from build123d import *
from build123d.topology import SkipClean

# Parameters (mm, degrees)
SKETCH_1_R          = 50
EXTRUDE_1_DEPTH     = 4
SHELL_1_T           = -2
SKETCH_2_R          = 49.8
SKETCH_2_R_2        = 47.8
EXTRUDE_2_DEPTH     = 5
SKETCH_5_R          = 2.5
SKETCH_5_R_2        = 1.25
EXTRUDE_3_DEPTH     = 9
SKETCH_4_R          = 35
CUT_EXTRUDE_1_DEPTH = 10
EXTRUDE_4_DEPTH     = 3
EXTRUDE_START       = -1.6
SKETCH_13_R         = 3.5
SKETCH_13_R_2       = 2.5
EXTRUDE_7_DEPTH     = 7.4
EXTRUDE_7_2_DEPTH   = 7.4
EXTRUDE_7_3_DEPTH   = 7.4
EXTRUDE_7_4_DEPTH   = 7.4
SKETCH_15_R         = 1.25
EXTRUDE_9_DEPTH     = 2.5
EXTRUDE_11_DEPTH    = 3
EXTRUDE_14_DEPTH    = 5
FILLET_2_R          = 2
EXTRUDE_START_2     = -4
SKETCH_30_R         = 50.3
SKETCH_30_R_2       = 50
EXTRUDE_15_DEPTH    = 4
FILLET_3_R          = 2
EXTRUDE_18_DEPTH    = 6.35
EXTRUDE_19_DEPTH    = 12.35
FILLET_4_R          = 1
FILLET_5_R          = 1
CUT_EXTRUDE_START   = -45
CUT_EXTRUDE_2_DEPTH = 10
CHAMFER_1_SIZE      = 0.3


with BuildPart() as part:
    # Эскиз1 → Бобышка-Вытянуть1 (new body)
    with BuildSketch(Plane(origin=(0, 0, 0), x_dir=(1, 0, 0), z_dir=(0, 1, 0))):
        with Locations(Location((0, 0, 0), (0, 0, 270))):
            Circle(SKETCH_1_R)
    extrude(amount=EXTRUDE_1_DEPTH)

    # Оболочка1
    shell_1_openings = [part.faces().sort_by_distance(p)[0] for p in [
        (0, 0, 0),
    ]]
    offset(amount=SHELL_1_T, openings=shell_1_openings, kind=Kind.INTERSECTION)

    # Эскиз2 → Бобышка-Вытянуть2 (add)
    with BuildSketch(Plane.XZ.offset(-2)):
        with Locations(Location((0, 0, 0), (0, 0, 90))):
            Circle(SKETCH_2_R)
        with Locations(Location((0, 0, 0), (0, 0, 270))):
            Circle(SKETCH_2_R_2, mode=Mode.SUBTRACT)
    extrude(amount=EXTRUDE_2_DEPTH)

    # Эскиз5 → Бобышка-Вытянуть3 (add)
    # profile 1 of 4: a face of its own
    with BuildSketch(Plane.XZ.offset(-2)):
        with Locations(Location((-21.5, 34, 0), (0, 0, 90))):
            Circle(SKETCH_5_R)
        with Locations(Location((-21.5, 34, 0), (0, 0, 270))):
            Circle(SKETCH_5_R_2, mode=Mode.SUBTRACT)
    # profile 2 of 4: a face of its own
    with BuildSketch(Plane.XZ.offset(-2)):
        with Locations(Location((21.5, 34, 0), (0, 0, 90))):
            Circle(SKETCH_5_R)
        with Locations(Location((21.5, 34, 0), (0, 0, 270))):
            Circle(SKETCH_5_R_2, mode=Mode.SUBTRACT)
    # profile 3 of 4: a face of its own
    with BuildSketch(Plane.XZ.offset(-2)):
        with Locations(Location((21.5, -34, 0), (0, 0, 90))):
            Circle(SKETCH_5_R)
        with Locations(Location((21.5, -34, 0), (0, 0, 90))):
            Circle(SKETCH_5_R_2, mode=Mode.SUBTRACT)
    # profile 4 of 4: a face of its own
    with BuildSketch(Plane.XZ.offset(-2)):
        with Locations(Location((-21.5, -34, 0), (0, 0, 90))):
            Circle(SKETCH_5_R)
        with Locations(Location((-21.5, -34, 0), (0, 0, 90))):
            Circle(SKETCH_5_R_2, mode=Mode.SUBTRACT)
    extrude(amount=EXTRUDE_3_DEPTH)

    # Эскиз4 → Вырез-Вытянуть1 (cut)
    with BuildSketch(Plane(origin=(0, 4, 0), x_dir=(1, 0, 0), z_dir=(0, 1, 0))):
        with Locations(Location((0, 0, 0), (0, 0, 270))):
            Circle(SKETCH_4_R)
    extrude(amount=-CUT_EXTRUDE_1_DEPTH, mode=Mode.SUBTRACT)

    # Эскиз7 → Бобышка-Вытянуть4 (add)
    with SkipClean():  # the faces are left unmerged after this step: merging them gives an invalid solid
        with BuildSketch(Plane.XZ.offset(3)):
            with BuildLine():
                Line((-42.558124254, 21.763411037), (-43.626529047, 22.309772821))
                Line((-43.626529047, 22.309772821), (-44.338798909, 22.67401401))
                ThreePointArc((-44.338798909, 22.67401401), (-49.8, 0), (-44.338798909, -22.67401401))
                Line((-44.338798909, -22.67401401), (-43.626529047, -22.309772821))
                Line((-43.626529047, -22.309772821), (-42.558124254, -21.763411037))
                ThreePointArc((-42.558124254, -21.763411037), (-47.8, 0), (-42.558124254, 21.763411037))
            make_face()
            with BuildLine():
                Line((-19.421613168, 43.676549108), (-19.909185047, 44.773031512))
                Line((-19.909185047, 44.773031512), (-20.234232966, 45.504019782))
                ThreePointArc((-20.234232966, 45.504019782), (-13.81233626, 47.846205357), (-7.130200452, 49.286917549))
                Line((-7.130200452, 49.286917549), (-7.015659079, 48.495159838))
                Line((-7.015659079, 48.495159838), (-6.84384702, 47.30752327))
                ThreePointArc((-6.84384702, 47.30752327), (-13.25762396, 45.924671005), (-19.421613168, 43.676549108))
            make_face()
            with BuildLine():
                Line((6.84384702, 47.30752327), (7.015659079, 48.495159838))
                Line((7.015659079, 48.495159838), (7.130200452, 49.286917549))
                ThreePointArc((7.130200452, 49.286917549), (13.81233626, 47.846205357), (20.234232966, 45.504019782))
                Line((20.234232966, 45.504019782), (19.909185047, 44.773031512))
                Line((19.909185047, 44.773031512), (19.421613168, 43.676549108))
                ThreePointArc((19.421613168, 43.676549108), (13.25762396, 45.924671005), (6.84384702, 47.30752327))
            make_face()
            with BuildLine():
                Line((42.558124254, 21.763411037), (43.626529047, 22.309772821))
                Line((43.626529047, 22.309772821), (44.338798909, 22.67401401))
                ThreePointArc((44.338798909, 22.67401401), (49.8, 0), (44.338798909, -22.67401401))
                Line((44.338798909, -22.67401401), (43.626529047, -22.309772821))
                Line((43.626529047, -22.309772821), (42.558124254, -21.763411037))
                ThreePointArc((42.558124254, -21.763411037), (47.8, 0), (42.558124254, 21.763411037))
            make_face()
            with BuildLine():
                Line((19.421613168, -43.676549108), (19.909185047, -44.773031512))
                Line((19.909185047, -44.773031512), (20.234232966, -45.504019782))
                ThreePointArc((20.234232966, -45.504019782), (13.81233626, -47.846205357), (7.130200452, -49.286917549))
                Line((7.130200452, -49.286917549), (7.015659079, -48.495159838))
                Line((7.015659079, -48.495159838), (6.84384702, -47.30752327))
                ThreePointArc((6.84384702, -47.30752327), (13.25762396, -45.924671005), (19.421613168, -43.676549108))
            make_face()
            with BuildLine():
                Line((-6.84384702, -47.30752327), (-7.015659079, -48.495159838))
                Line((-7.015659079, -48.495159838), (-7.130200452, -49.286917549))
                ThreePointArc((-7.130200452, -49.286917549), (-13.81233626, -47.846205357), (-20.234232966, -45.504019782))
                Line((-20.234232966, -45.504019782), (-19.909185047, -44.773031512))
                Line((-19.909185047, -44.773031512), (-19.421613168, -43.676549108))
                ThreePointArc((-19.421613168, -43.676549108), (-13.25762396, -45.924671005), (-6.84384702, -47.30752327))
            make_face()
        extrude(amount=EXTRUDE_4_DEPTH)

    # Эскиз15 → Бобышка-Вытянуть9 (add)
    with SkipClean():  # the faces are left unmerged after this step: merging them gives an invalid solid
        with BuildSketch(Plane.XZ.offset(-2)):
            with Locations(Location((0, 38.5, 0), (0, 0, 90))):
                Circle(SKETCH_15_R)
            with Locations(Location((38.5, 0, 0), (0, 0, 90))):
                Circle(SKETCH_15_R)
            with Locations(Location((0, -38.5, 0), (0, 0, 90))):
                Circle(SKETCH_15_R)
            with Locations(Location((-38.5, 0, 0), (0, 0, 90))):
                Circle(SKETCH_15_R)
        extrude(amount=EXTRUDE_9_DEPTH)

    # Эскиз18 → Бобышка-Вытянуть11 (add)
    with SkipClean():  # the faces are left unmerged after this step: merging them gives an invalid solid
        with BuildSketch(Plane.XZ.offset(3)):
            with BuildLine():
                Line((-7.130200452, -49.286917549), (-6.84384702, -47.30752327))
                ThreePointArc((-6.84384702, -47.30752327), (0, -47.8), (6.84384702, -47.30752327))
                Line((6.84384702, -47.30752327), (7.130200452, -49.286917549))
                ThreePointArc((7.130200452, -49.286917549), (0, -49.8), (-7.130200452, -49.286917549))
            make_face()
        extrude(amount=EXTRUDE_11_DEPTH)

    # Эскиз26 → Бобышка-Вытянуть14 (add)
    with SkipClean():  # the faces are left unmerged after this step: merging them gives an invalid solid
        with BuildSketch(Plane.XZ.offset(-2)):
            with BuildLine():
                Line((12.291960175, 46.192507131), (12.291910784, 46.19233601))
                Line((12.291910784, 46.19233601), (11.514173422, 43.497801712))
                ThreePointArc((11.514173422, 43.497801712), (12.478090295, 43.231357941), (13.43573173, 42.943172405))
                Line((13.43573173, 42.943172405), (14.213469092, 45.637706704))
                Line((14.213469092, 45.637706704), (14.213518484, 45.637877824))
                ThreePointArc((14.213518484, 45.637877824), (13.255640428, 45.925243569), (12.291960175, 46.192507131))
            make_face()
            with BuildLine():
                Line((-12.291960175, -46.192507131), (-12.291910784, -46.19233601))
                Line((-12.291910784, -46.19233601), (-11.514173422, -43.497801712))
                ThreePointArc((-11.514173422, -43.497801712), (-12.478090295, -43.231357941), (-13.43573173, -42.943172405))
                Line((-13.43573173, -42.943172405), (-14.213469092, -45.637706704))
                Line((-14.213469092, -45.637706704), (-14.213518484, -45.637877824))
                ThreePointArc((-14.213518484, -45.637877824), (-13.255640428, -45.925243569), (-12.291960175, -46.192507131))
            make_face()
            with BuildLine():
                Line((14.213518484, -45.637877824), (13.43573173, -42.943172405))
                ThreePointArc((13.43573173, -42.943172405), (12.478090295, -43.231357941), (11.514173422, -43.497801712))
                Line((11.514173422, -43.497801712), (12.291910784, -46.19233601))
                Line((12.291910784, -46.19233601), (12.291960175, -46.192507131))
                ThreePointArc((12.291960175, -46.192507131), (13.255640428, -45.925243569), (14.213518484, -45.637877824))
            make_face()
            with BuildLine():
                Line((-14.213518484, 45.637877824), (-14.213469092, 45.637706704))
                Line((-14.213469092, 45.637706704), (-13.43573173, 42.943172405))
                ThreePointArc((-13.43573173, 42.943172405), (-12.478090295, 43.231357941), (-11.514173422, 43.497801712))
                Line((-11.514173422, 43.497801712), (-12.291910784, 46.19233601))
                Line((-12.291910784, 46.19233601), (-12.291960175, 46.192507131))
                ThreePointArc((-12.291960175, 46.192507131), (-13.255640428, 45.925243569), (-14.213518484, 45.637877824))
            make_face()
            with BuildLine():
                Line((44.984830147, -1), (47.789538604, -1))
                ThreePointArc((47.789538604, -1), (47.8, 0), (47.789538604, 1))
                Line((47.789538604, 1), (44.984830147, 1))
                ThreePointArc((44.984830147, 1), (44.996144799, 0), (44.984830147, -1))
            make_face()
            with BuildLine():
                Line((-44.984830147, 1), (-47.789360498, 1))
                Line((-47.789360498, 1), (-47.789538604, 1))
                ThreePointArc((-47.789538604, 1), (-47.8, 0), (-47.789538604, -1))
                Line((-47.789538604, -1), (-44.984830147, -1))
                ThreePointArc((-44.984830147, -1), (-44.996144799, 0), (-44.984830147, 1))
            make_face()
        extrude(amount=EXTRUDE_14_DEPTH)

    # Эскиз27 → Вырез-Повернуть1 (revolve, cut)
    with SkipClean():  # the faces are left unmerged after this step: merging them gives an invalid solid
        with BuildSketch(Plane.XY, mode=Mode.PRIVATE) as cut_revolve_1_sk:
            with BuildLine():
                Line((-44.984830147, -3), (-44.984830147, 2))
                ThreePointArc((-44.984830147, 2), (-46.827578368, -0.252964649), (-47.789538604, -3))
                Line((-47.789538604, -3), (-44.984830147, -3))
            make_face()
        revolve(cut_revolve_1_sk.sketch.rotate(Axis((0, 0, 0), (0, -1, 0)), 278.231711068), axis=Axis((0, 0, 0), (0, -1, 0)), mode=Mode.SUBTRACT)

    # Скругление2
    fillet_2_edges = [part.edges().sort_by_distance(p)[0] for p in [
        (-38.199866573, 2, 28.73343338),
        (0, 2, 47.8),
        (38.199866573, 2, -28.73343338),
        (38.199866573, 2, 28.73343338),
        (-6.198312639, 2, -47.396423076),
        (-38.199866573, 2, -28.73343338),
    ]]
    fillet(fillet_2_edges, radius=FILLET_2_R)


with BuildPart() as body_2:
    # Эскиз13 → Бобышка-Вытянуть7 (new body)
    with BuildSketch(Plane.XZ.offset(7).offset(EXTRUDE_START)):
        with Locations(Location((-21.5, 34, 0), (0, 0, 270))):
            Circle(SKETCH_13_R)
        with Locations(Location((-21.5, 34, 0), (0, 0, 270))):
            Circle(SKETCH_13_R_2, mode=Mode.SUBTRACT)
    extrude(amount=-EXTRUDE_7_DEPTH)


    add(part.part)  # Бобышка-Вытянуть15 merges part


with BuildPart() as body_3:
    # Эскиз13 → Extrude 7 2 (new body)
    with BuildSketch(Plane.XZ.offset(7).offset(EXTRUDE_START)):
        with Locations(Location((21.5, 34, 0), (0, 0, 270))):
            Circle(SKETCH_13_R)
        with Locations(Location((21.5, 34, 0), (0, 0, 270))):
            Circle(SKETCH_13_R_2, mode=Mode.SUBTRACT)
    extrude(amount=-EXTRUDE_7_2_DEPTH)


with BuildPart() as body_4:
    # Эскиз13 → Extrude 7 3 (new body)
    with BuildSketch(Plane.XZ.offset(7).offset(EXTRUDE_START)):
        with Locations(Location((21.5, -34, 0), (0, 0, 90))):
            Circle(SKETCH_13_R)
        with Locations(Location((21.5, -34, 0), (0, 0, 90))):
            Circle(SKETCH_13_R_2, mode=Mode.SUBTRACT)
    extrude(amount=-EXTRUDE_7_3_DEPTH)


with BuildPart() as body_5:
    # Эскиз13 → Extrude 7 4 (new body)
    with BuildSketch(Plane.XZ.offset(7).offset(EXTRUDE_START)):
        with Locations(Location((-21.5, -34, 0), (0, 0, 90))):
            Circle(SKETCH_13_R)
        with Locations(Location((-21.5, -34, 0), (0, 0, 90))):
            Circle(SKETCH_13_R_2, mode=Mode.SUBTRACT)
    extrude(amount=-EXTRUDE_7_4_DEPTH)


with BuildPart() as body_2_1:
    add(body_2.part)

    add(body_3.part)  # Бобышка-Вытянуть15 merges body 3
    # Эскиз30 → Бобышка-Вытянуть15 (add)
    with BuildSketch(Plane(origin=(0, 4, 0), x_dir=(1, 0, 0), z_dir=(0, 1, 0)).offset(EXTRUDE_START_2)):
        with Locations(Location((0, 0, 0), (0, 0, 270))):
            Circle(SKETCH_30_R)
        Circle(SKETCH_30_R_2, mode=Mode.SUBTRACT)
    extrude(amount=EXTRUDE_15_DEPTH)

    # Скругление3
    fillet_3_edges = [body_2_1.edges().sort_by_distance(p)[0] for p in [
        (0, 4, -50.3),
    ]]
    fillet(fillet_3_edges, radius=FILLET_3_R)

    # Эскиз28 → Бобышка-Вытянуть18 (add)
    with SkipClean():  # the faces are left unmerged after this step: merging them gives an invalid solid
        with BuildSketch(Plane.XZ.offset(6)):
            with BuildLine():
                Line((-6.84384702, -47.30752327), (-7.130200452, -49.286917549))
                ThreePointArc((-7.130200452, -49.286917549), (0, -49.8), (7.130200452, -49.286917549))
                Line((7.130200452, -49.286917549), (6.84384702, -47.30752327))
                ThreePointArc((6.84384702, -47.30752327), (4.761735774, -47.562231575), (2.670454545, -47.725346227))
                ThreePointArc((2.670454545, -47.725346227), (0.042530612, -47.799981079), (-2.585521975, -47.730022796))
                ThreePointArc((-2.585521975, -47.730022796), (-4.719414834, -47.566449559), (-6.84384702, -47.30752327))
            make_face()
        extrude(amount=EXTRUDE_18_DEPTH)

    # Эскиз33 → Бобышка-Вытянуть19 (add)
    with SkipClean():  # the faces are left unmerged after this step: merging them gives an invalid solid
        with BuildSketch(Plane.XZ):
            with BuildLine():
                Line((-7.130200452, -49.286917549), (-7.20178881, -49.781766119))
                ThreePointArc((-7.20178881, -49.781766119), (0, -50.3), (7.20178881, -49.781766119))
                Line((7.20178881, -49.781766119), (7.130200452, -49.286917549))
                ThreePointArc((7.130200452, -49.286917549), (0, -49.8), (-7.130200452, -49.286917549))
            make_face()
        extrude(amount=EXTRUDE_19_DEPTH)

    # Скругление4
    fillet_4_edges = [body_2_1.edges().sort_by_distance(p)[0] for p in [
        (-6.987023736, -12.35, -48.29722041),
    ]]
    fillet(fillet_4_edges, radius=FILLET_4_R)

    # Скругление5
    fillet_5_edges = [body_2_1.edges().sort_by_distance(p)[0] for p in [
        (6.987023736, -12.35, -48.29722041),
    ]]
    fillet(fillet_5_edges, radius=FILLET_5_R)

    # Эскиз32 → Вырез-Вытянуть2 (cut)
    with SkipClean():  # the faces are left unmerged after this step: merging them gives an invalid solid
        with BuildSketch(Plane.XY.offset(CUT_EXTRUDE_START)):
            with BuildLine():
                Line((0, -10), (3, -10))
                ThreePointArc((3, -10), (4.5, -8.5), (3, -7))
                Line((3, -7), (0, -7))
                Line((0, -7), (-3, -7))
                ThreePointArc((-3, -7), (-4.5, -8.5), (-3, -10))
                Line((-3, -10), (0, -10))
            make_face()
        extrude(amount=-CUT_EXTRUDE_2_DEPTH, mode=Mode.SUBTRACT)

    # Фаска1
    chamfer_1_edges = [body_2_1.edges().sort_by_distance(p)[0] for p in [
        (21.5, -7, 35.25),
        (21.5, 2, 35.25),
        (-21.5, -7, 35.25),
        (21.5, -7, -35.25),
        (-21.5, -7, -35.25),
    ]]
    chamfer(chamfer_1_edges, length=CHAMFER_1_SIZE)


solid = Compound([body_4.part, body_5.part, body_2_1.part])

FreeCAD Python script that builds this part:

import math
import FreeCAD as App
import Part
import Sketcher

V = App.Vector
Q = App.Units.Quantity


def edges_at(feature, points):
    """Names of the edges that pass closest to the given points."""
    edges = feature.Shape.Edges
    near = lambda p: min(range(len(edges)), key=lambda i: edges[i].distToShape(Part.Vertex(*p))[0])
    return sorted({f"Edge{near(p) + 1}" for p in points})


def faces_at(feature, points):
    """Names of the faces that lie closest to the given points."""
    faces = feature.Shape.Faces
    near = lambda p: min(range(len(faces)), key=lambda i: faces[i].distToShape(Part.Vertex(*p))[0])
    return sorted({f"Face{near(p) + 1}" for p in points})

doc = App.newDocument("Part")
body = doc.addObject("PartDesign::Body", "Body")

# Sketch on XZ plane
sketch1 = body.newObject("Sketcher::SketchObject", "Sketch")
sketch1.AttachmentSupport = (doc.getObject("XZ_Plane"), [""])
sketch1.MapMode = "FlatFace"
sketch1.addGeometry(Part.Circle(V(0, 0, 0), V(0, 0, 1), 50), False)
sketch1.addConstraint([
    Sketcher.Constraint("Coincident", 0, 3, -1, 1),
    Sketcher.Constraint("Diameter", 0, Q("100 mm")),
])
pad1 = body.newObject("PartDesign::Pad", "Pad")
pad1.Profile = sketch1
pad1.Length = 4
pad1.Reversed = True
doc.recompute()

thickness = body.newObject("PartDesign::Thickness", "Thickness")
thickness.Base = (pad1, faces_at(pad1, [(0, 0, 0)]))
thickness.Value = 2
thickness.Reversed = True
thickness.Join = "Intersection"

# Sketch on XZ plane
sketch2 = body.newObject("Sketcher::SketchObject", "Sketch001")
sketch2.AttachmentSupport = (doc.getObject("XZ_Plane"), [""])
sketch2.MapMode = "FlatFace"
sketch2.AttachmentOffset = App.Placement(V(0, 0, -2), App.Rotation())
sketch2.addGeometry([
    Part.Circle(V(0, 0, 0), V(0, 0, 1), 50),
    Part.Circle(V(0, 0, 0), V(0, 0, 1), 48),
], False)
sketch2.addConstraint([
    Sketcher.Constraint("Coincident", 0, 3, -1, 1),
    Sketcher.Constraint("Coincident", 1, 3, -1, 1),
    Sketcher.Constraint("Diameter", 0, Q("99.6 mm")),
    Sketcher.Constraint("Diameter", 1, Q("95.6 mm")),
])
pad2 = body.newObject("PartDesign::Pad", "Pad001")
pad2.Profile = sketch2
pad2.Length = 5

# Sketch on XZ plane
sketch3 = body.newObject("Sketcher::SketchObject", "Sketch002")
sketch3.AttachmentSupport = (doc.getObject("XZ_Plane"), [""])
sketch3.MapMode = "FlatFace"
sketch3.AttachmentOffset = App.Placement(V(0, 0, -2), App.Rotation())
sketch3.addGeometry([
    Part.Circle(V(-21.5, 34, 0), V(0, 0, 1), 2.5),  # 0
    Part.Circle(V(-21.5, 34, 0), V(0, 0, 1), 1.2),  # 1
    Part.Circle(V(21.5, 34, 0), V(0, 0, 1), 2.5),  # 2
    Part.Circle(V(21.5, 34, 0), V(0, 0, 1), 1.2),  # 3
    Part.Circle(V(21.5, -34, 0), V(0, 0, 1), 2.5),  # 4
    Part.Circle(V(21.5, -34, 0), V(0, 0, 1), 1.2),  # 5
    Part.Circle(V(-21.5, -34, 0), V(0, 0, 1), 2.5),  # 6
    Part.Circle(V(-21.5, -34, 0), V(0, 0, 1), 1.2),  # 7
], False)
sketch3.addConstraint([
    Sketcher.Constraint("Coincident", 1, 3, 0, 3),
    Sketcher.Constraint("Coincident", 3, 3, 2, 3),
    Sketcher.Constraint("Coincident", 5, 3, 4, 3),
    Sketcher.Constraint("Coincident", 7, 3, 6, 3),
    Sketcher.Constraint("Equal", 0, 2),
    Sketcher.Constraint("Equal", 1, 3),
    Sketcher.Constraint("Equal", 2, 4),
    Sketcher.Constraint("Equal", 3, 5),
    Sketcher.Constraint("Equal", 4, 6),
    Sketcher.Constraint("Equal", 5, 7),
    Sketcher.Constraint("Symmetric", 0, 3, 4, 3, -1, 1),
    Sketcher.Constraint("Symmetric", 2, 3, 6, 3, -1, 1),
    Sketcher.Constraint("Symmetric", 0, 3, 2, 3, -2),
    Sketcher.Constraint("Diameter", 0, Q("5 mm")),
    Sketcher.Constraint("Diameter", 1, Q("2.5 mm")),
    Sketcher.Constraint("DistanceY", -1, 1, 0, 3, Q("34 mm")),
    Sketcher.Constraint("DistanceX", 0, 3, 2, 3, Q("43 mm")),
])
pad3 = body.newObject("PartDesign::Pad", "Pad002")
pad3.Profile = sketch3
pad3.Length = 9

# Sketch on XZ plane
sketch4 = body.newObject("Sketcher::SketchObject", "Sketch003")
sketch4.AttachmentSupport = (doc.getObject("XZ_Plane"), [""])
sketch4.MapMode = "FlatFace"
sketch4.AttachmentOffset = App.Placement(V(0, 0, -4), App.Rotation())
sketch4.addGeometry(Part.Circle(V(0, 0, 0), V(0, 0, 1), 35), False)
sketch4.addConstraint([
    Sketcher.Constraint("Coincident", 0, 3, -1, 1),
    Sketcher.Constraint("Diameter", 0, Q("70 mm")),
])
pocket1 = body.newObject("PartDesign::Pocket", "Pocket")
pocket1.Profile = sketch4
pocket1.Length = 10
pocket1.Reversed = True

# Sketch on XZ plane
sketch5 = body.newObject("Sketcher::SketchObject", "Sketch004")
sketch5.AttachmentSupport = (doc.getObject("XZ_Plane"), [""])
sketch5.MapMode = "FlatFace"
sketch5.AttachmentOffset = App.Placement(V(0, 0, 3), App.Rotation())
sketch5.addGeometry([
    Part.LineSegment(V(-42.6, 21.8, 0), V(-43.6, 22.3, 0)),  # 0
    Part.LineSegment(V(-43.6, 22.3, 0), V(-44.3, 22.7, 0)),  # 1
    Part.ArcOfCircle(Part.Circle(V(0, 0, 0), V(0, 0, 1), 49.8), math.radians(153), math.radians(207)),  # 2
    Part.LineSegment(V(-44.3, -22.7, 0), V(-43.6, -22.3, 0)),  # 3
    Part.LineSegment(V(-43.6, -22.3, 0), V(-42.6, -21.8, 0)),  # 4
    Part.ArcOfCircle(Part.Circle(V(0, 0, 0), V(0, 0, 1), 47.8), math.radians(153), math.radians(207)),  # 5
    Part.LineSegment(V(-19.9, 44.8, 0), V(-19.4, 43.7, 0)),  # 6
    Part.ArcOfCircle(Part.Circle(V(0, 0, 0), V(0, 0, 1), 47.8), math.radians(98.23), math.radians(113.97)),  # 7
    Part.LineSegment(V(-6.8, 47.3, 0), V(-7, 48.5, 0)),  # 8
    Part.LineSegment(V(-7, 48.5, 0), V(-7.1, 49.3, 0)),  # 9
    Part.ArcOfCircle(Part.Circle(V(0, 0, 0), V(0, 0, 1), 49.8), math.radians(98.23), math.radians(113.97)),  # 10
    Part.LineSegment(V(-20.2, 45.5, 0), V(-19.9, 44.8, 0)),  # 11
    Part.LineSegment(V(7, 48.5, 0), V(6.8, 47.3, 0)),  # 12
    Part.ArcOfCircle(Part.Circle(V(0, 0, 0), V(0, 0, 1), 47.8), math.radians(66.03), math.radians(81.77)),  # 13
    Part.LineSegment(V(19.4, 43.7, 0), V(19.9, 44.8, 0)),  # 14
    Part.LineSegment(V(19.9, 44.8, 0), V(20.2, 45.5, 0)),  # 15
    Part.ArcOfCircle(Part.Circle(V(0, 0, 0), V(0, 0, 1), 49.8), math.radians(66.03), math.radians(81.77)),  # 16
    Part.LineSegment(V(7.1, 49.3, 0), V(7, 48.5, 0)),  # 17
    Part.LineSegment(V(43.6, 22.3, 0), V(42.6, 21.8, 0)),  # 18
    Part.ArcOfCircle(Part.Circle(V(0, 0, 0), V(0, 0, 1), 47.8), math.radians(-27), math.radians(27)),  # 19
    Part.LineSegment(V(42.6, -21.8, 0), V(43.6, -22.3, 0)),  # 20
    Part.LineSegment(V(43.6, -22.3, 0), V(44.3, -22.7, 0)),  # 21
    Part.ArcOfCircle(Part.Circle(V(0, 0, 0), V(0, 0, 1), 49.8), math.radians(-27), math.radians(27)),  # 22
    Part.LineSegment(V(44.3, 22.7, 0), V(43.6, 22.3, 0)),  # 23
    Part.LineSegment(V(19.9, -44.8, 0), V(19.4, -43.7, 0)),  # 24
    Part.ArcOfCircle(Part.Circle(V(0, 0, 0), V(0, 0, 1), 47.8), math.radians(-81.77), math.radians(-66.03)),  # 25
    Part.LineSegment(V(6.8, -47.3, 0), V(7, -48.5, 0)),  # 26
    Part.LineSegment(V(7, -48.5, 0), V(7.1, -49.3, 0)),  # 27
    Part.ArcOfCircle(Part.Circle(V(0, 0, 0), V(0, 0, 1), 49.8), math.radians(-81.77), math.radians(-66.03)),  # 28
    Part.LineSegment(V(20.2, -45.5, 0), V(19.9, -44.8, 0)),  # 29
    Part.LineSegment(V(-7, -48.5, 0), V(-6.8, -47.3, 0)),  # 30
    Part.ArcOfCircle(Part.Circle(V(0, 0, 0), V(0, 0, 1), 47.8), math.radians(-113.97), math.radians(-98.23)),  # 31
    Part.LineSegment(V(-19.4, -43.7, 0), V(-19.9, -44.8, 0)),  # 32
    Part.LineSegment(V(-19.9, -44.8, 0), V(-20.2, -45.5, 0)),  # 33
    Part.ArcOfCircle(Part.Circle(V(0, 0, 0), V(0, 0, 1), 49.8), math.radians(-113.97), math.radians(-98.23)),  # 34
    Part.LineSegment(V(-7.1, -49.3, 0), V(-7, -48.5, 0)),  # 35
], False)
sketch5.addConstraint([
    Sketcher.Constraint("Coincident", 0, 2, 1, 1),
    Sketcher.Constraint("Coincident", 1, 2, 2, 1),
    Sketcher.Constraint("Coincident", 2, 2, 3, 1),
    Sketcher.Constraint("Coincident", 3, 2, 4, 1),
    Sketcher.Constraint("Coincident", 4, 2, 5, 2),
    Sketcher.Constraint("Coincident", 5, 1, 0, 1),
    Sketcher.Constraint("Coincident", 6, 2, 7, 2),
    Sketcher.Constraint("Coincident", 7, 1, 8, 1),
    Sketcher.Constraint("Coincident", 8, 2, 9, 1),
    Sketcher.Constraint("Coincident", 9, 2, 10, 1),
    Sketcher.Constraint("Coincident", 10, 2, 11, 1),
    Sketcher.Constraint("Coincident", 11, 2, 6, 1),
    Sketcher.Constraint("Coincident", 12, 2, 13, 2),
    Sketcher.Constraint("Coincident", 13, 1, 14, 1),
    Sketcher.Constraint("Coincident", 14, 2, 15, 1),
    Sketcher.Constraint("Coincident", 15, 2, 16, 1),
    Sketcher.Constraint("Coincident", 16, 2, 17, 1),
    Sketcher.Constraint("Coincident", 17, 2, 12, 1),
    Sketcher.Constraint("Coincident", 18, 2, 19, 2),
    Sketcher.Constraint("Coincident", 19, 1, 20, 1),
    Sketcher.Constraint("Coincident", 20, 2, 21, 1),
    Sketcher.Constraint("Coincident", 21, 2, 22, 1),
    Sketcher.Constraint("Coincident", 22, 2, 23, 1),
    Sketcher.Constraint("Coincident", 23, 2, 18, 1),
    Sketcher.Constraint("Coincident", 24, 2, 25, 2),
    Sketcher.Constraint("Coincident", 25, 1, 26, 1),
    Sketcher.Constraint("Coincident", 26, 2, 27, 1),
    Sketcher.Constraint("Coincident", 27, 2, 28, 1),
    Sketcher.Constraint("Coincident", 28, 2, 29, 1),
    Sketcher.Constraint("Coincident", 29, 2, 24, 1),
    Sketcher.Constraint("Coincident", 30, 2, 31, 2),
    Sketcher.Constraint("Coincident", 31, 1, 32, 1),
    Sketcher.Constraint("Coincident", 32, 2, 33, 1),
    Sketcher.Constraint("Coincident", 33, 2, 34, 1),
    Sketcher.Constraint("Coincident", 34, 2, 35, 1),
    Sketcher.Constraint("Coincident", 35, 2, 30, 1),
    Sketcher.Constraint("Coincident", 2, 3, -1, 1),
    Sketcher.Constraint("Coincident", 5, 3, -1, 1),
    Sketcher.Constraint("Coincident", 7, 3, -1, 1),
    Sketcher.Constraint("Coincident", 10, 3, -1, 1),
    Sketcher.Constraint("Coincident", 13, 3, -1, 1),
    Sketcher.Constraint("Coincident", 16, 3, -1, 1),
    Sketcher.Constraint("Coincident", 19, 3, -1, 1),
    Sketcher.Constraint("Coincident", 22, 3, -1, 1),
    Sketcher.Constraint("Coincident", 25, 3, -1, 1),
    Sketcher.Constraint("Coincident", 28, 3, -1, 1),
    Sketcher.Constraint("Coincident", 31, 3, -1, 1),
    Sketcher.Constraint("Coincident", 34, 3, -1, 1),
    Sketcher.Constraint("Equal", 5, 7),
    Sketcher.Constraint("Equal", 2, 10),
    Sketcher.Constraint("Equal", 7, 13),
    Sketcher.Constraint("Equal", 10, 16),
    Sketcher.Constraint("Equal", 13, 19),
    Sketcher.Constraint("Equal", 16, 22),
    Sketcher.Constraint("Equal", 19, 25),
    Sketcher.Constraint("Equal", 22, 28),
    Sketcher.Constraint("Equal", 25, 31),
    Sketcher.Constraint("Equal", 28, 34),
    Sketcher.Constraint("Symmetric", 0, 2, 20, 2, -1, 1),
    Sketcher.Constraint("Symmetric", 3, 2, 23, 2, -1, 1),
    Sketcher.Constraint("Symmetric", 8, 2, 26, 2, -1, 1),
    Sketcher.Constraint("Symmetric", 11, 2, 29, 2, -1, 1),
    Sketcher.Constraint("Symmetric", 14, 2, 32, 2, -1, 1),
    Sketcher.Constraint("Symmetric", 17, 2, 35, 2, -1, 1),
    Sketcher.Constraint("Symmetric", 11, 2, 14, 2, -2),
    Sketcher.Constraint("Symmetric", 8, 2, 17, 2, -2),
    Sketcher.Constraint("Symmetric", 3, 2, 20, 2, -2),
    Sketcher.Constraint("Parallel", 0, 1),
    Sketcher.Constraint("Parallel", 3, 4),
    Sketcher.Constraint("Parallel", 8, 9),
    Sketcher.Constraint("Parallel", 6, 11),
    Sketcher.Constraint("Parallel", 14, 15),
    Sketcher.Constraint("Parallel", 12, 17),
    Sketcher.Constraint("Parallel", 4, 18),
    Sketcher.Constraint("Parallel", 1, 20),
    Sketcher.Constraint("Parallel", 20, 21),
    Sketcher.Constraint("Parallel", 18, 23),
    Sketcher.Constraint("Parallel", 11, 24),
    Sketcher.Constraint("Parallel", 9, 26),
    Sketcher.Constraint("Parallel", 26, 27),
    Sketcher.Constraint("Parallel", 24, 29),
    Sketcher.Constraint("Parallel", 17, 30),
    Sketcher.Constraint("Parallel", 15, 32),
    Sketcher.Constraint("Parallel", 32, 33),
    Sketcher.Constraint("Parallel", 30, 35),
    Sketcher.Constraint("Horizontal", 7, 1, 12, 2),
    Sketcher.Constraint("Horizontal", 6, 2, 13, 1),
    Sketcher.Constraint("Horizontal", 5, 1, 18, 2),
    Sketcher.Constraint("Equal", 4, 6),
    Sketcher.Constraint("Equal", 6, 8),
    Sketcher.Constraint("Radius", 2, Q("49.8 mm")),
    Sketcher.Constraint("Radius", 5, Q("47.8 mm")),
    Sketcher.Constraint("Distance", 0, Q("1.2 mm")),
    Sketcher.Constraint("DistanceX", 1, 2, -1, 1, Q("44.338799 mm")),
    Sketcher.Constraint("DistanceX", 9, 2, -1, 1, Q("7.1302 mm")),
    Sketcher.Constraint("DistanceX", 0, 2, -1, 1, Q("43.626529 mm")),
    Sketcher.Constraint("DistanceY", -1, 1, 6, 2, Q("43.676549 mm")),
    Sketcher.Constraint("DistanceX", 8, 2, -1, 1, Q("7.015659 mm")),
    Sketcher.Constraint("DistanceY", -1, 1, 10, 2, Q("45.50402 mm")),
])
pad4 = body.newObject("PartDesign::Pad", "Pad003")
pad4.Profile = sketch5
pad4.Length = 3

# Sketch on XZ plane
sketch6 = body.newObject("Sketcher::SketchObject", "Sketch005")
sketch6.AttachmentSupport = (doc.getObject("XZ_Plane"), [""])
sketch6.MapMode = "FlatFace"
sketch6.AttachmentOffset = App.Placement(V(0, 0, -2), App.Rotation())
sketch6.addGeometry([
    Part.Circle(V(0, 38.5, 0), V(0, 0, 1), 1.2),
    Part.Circle(V(38.5, 0, 0), V(0, 0, 1), 1.2),
    Part.Circle(V(0, -38.5, 0), V(0, 0, 1), 1.2),
    Part.Circle(V(-38.5, 0, 0), V(0, 0, 1), 1.2),
], False)
sketch6.addConstraint([
    Sketcher.Constraint("Equal", 0, 1),
    Sketcher.Constraint("Equal", 1, 2),
    Sketcher.Constraint("Equal", 2, 3),
    Sketcher.Constraint("Symmetric", 0, 3, 2, 3, -1, 1),
    Sketcher.Constraint("Symmetric", 1, 3, 3, 3, -1, 1),
    Sketcher.Constraint("PointOnObject", 0, 3, -2),
    Sketcher.Constraint("PointOnObject", 1, 3, -1),
    Sketcher.Constraint("Diameter", 0, Q("2.5 mm")),
    Sketcher.Constraint("DistanceY", 2, 3, 0, 3, Q("77 mm")),
    Sketcher.Constraint("DistanceX", 3, 3, 1, 3, Q("77 mm")),
])
pad5 = body.newObject("PartDesign::Pad", "Pad004")
pad5.Profile = sketch6
pad5.Length = 2.5

# Sketch on XZ plane
sketch7 = body.newObject("Sketcher::SketchObject", "Sketch006")
sketch7.AttachmentSupport = (doc.getObject("XZ_Plane"), [""])
sketch7.MapMode = "FlatFace"
sketch7.AttachmentOffset = App.Placement(V(0, 0, 3), App.Rotation())
sketch7.addGeometry([
    Part.LineSegment(V(-6.8, -47.3, 0), V(-7.1, -49.3, 0)),
    Part.ArcOfCircle(Part.Circle(V(0, 0, 0), V(0, 0, 1), 49.8), math.radians(-98.23), math.radians(-81.77)),
    Part.LineSegment(V(7.1, -49.3, 0), V(6.8, -47.3, 0)),
    Part.ArcOfCircle(Part.Circle(V(0, 0, 0), V(0, 0, 1), 47.8), math.radians(-98.23), math.radians(-81.77)),
], False)
sketch7.addConstraint([
    Sketcher.Constraint("Coincident", 0, 2, 1, 1),
    Sketcher.Constraint("Coincident", 1, 2, 2, 1),
    Sketcher.Constraint("Coincident", 2, 2, 3, 2),
    Sketcher.Constraint("Coincident", 3, 1, 0, 1),
    Sketcher.Constraint("Coincident", 1, 3, -1, 1),
    Sketcher.Constraint("Coincident", 3, 3, -1, 1),
    Sketcher.Constraint("Horizontal", 0, 2, 1, 2),
    Sketcher.Constraint("Horizontal", 2, 2, 3, 1),
    Sketcher.Constraint("Radius", 1, Q("49.8 mm")),
    Sketcher.Constraint("Radius", 3, Q("47.8 mm")),
    Sketcher.Constraint("DistanceX", 0, 2, -1, 1, Q("7.1302 mm")),
    Sketcher.Constraint("DistanceX", -1, 1, 2, 2, Q("6.843847 mm")),
])
pad6 = body.newObject("PartDesign::Pad", "Pad005")
pad6.Profile = sketch7
pad6.Length = 3

# Sketch on XZ plane
sketch8 = body.newObject("Sketcher::SketchObject", "Sketch007")
sketch8.AttachmentSupport = (doc.getObject("XZ_Plane"), [""])
sketch8.MapMode = "FlatFace"
sketch8.AttachmentOffset = App.Placement(V(0, 0, -2), App.Rotation())
sketch8.addGeometry([
    Part.LineSegment(V(12.29196, 46.192507, 0), V(12.291911, 46.192336, 0)),  # 0
    Part.LineSegment(V(12.291911, 46.192336, 0), V(11.514173, 43.497802, 0)),  # 1
    Part.ArcOfCircle(Part.Circle(V(0.221852, 0.768625, 0), V(0, 0, 1), 44.196143), math.radians(72.603492), math.radians(75.196508)),  # 2
    Part.LineSegment(V(13.435732, 42.943172, 0), V(14.213469, 45.637707, 0)),  # 3
    Part.LineSegment(V(14.213469, 45.637707, 0), V(14.213518, 45.637878, 0)),  # 4
    Part.ArcOfCircle(Part.Circle(V(0.000001, 0.000002, 0), V(0, 0, 1), 47.799998), math.radians(72.701256), math.radians(75.098744)),  # 5
    Part.LineSegment(V(-12.29196, -46.192507, 0), V(-12.291911, -46.192336, 0)),  # 6
    Part.LineSegment(V(-12.291911, -46.192336, 0), V(-11.514173, -43.497802, 0)),  # 7
    Part.ArcOfCircle(Part.Circle(V(-0.221852, -0.768625, 0), V(0, 0, 1), 44.196143), math.radians(-107.396508), math.radians(-104.803492)),  # 8
    Part.LineSegment(V(-13.435732, -42.943172, 0), V(-14.213469, -45.637707, 0)),  # 9
    Part.LineSegment(V(-14.213469, -45.637707, 0), V(-14.213518, -45.637878, 0)),  # 10
    Part.ArcOfCircle(Part.Circle(V(-0.000001, -0.000002, 0), V(0, 0, 1), 47.799998), math.radians(-107.298744), math.radians(-104.901256)),  # 11
    Part.LineSegment(V(14.213518, -45.637878, 0), V(13.435732, -42.943172, 0)),  # 12
    Part.ArcOfCircle(Part.Circle(V(0.221852, -0.768625, 0), V(0, 0, 1), 44.196143), math.radians(-75.196508), math.radians(-72.603492)),  # 13
    Part.LineSegment(V(11.514173, -43.497802, 0), V(12.291911, -46.192336, 0)),  # 14
    Part.LineSegment(V(12.291911, -46.192336, 0), V(12.29196, -46.192507, 0)),  # 15
    Part.ArcOfCircle(Part.Circle(V(0.000001, -0.000002, 0), V(0, 0, 1), 47.799998), math.radians(-75.098744), math.radians(-72.701256)),  # 16
    Part.LineSegment(V(-14.213518, 45.637878, 0), V(-14.213469, 45.637707, 0)),  # 17
    Part.LineSegment(V(-14.213469, 45.637707, 0), V(-13.435732, 42.943172, 0)),  # 18
    Part.ArcOfCircle(Part.Circle(V(-0.221852, 0.768625, 0), V(0, 0, 1), 44.196143), math.radians(104.803492), math.radians(107.396508)),  # 19
    Part.LineSegment(V(-11.514173, 43.497802, 0), V(-12.291911, 46.192336, 0)),  # 20
    Part.LineSegment(V(-12.291911, 46.192336, 0), V(-12.29196, 46.192507, 0)),  # 21
    Part.ArcOfCircle(Part.Circle(V(-0.000001, 0.000002, 0), V(0, 0, 1), 47.799998), math.radians(104.901256), math.radians(107.298744)),  # 22
    Part.LineSegment(V(44.98483, -1, 0), V(47.789539, -1, 0)),  # 23
    Part.ArcOfCircle(Part.Circle(V(0.000001, 0, 0), V(0, 0, 1), 47.799999), math.radians(-1.198744), math.radians(1.198744)),  # 24
    Part.LineSegment(V(47.789539, 1, 0), V(44.98483, 1, 0)),  # 25
    Part.ArcOfCircle(Part.Circle(V(0.799999, 0, 0), V(0, 0, 1), 44.196146), math.radians(-1.296508), math.radians(1.296508)),  # 26
    Part.LineSegment(V(-44.98483, 1, 0), V(-47.78936, 1, 0)),  # 27
    Part.LineSegment(V(-47.78936, 1, 0), V(-47.789539, 1, 0)),  # 28
    Part.ArcOfCircle(Part.Circle(V(-0.000001, 0, 0), V(0, 0, 1), 47.799999), math.radians(178.801256), math.radians(181.198744)),  # 29
    Part.LineSegment(V(-47.789539, -1, 0), V(-44.98483, -1, 0)),  # 30
    Part.ArcOfCircle(Part.Circle(V(-0.799999, 0, 0), V(0, 0, 1), 44.196146), math.radians(178.703492), math.radians(181.296508)),  # 31
], False)
sketch8.addConstraint([
    Sketcher.Constraint("Coincident", 0, 2, 1, 1),
    Sketcher.Constraint("Coincident", 1, 2, 2, 2),
    Sketcher.Constraint("Coincident", 2, 1, 3, 1),
    Sketcher.Constraint("Coincident", 3, 2, 4, 1),
    Sketcher.Constraint("Coincident", 4, 2, 5, 1),
    Sketcher.Constraint("Coincident", 5, 2, 0, 1),
    Sketcher.Constraint("Coincident", 6, 2, 7, 1),
    Sketcher.Constraint("Coincident", 7, 2, 8, 2),
    Sketcher.Constraint("Coincident", 8, 1, 9, 1),
    Sketcher.Constraint("Coincident", 9, 2, 10, 1),
    Sketcher.Constraint("Coincident", 10, 2, 11, 1),
    Sketcher.Constraint("Coincident", 11, 2, 6, 1),
    Sketcher.Constraint("Coincident", 12, 2, 13, 2),
    Sketcher.Constraint("Coincident", 13, 1, 14, 1),
    Sketcher.Constraint("Coincident", 14, 2, 15, 1),
    Sketcher.Constraint("Coincident", 15, 2, 16, 1),
    Sketcher.Constraint("Coincident", 16, 2, 12, 1),
    Sketcher.Constraint("Coincident", 17, 2, 18, 1),
    Sketcher.Constraint("Coincident", 18, 2, 19, 2),
    Sketcher.Constraint("Coincident", 19, 1, 20, 1),
    Sketcher.Constraint("Coincident", 20, 2, 21, 1),
    Sketcher.Constraint("Coincident", 21, 2, 22, 1),
    Sketcher.Constraint("Coincident", 22, 2, 17, 1),
    Sketcher.Constraint("Coincident", 23, 2, 24, 1),
    Sketcher.Constraint("Coincident", 24, 2, 25, 1),
    Sketcher.Constraint("Coincident", 25, 2, 26, 2),
    Sketcher.Constraint("Coincident", 26, 1, 23, 1),
    Sketcher.Constraint("Coincident", 27, 2, 28, 1),
    Sketcher.Constraint("Coincident", 28, 2, 29, 1),
    Sketcher.Constraint("Coincident", 29, 2, 30, 1),
    Sketcher.Constraint("Coincident", 30, 2, 31, 2),
    Sketcher.Constraint("Coincident", 31, 1, 27, 1),
    Sketcher.Constraint("Horizontal", 23),
    Sketcher.Constraint("Horizontal", 25),
    Sketcher.Constraint("Horizontal", 27),
    Sketcher.Constraint("Horizontal", 28),
    Sketcher.Constraint("Horizontal", 30),
    Sketcher.Constraint("Coincident", 5, 3, -1, 1),
    Sketcher.Constraint("Coincident", 11, 3, -1, 1),
    Sketcher.Constraint("Coincident", 16, 3, -1, 1),
    Sketcher.Constraint("Coincident", 22, 3, -1, 1),
    Sketcher.Constraint("Coincident", 24, 3, -1, 1),
    Sketcher.Constraint("Coincident", 29, 3, -1, 1),
    Sketcher.Constraint("Equal", 2, 8),
    Sketcher.Constraint("Equal", 5, 11),
    Sketcher.Constraint("Equal", 8, 13),
    Sketcher.Constraint("Equal", 11, 16),
    Sketcher.Constraint("Equal", 13, 19),
    Sketcher.Constraint("Equal", 16, 22),
    Sketcher.Constraint("Equal", 22, 24),
    Sketcher.Constraint("Equal", 24, 29),
    Sketcher.Constraint("Equal", 26, 31),
    Sketcher.Constraint("Symmetric", 2, 3, 8, 3, -1, 1),
    Sketcher.Constraint("Symmetric", 13, 3, 19, 3, -1, 1),
    Sketcher.Constraint("Symmetric", 26, 3, 31, 3, -1, 1),
    Sketcher.Constraint("Symmetric", 0, 2, 6, 2, -1, 1),
    Sketcher.Constraint("Symmetric", 3, 2, 9, 2, -1, 1),
    Sketcher.Constraint("Symmetric", 14, 2, 20, 2, -1, 1),
    Sketcher.Constraint("Symmetric", 8, 3, 13, 3, -2),
    Sketcher.Constraint("Symmetric", 6, 2, 14, 2, -2),
    Sketcher.Constraint("Symmetric", 3, 2, 17, 2, -2),
    Sketcher.Constraint("Symmetric", 26, 1, 30, 2, -2),
    Sketcher.Constraint("Parallel", 1, 3),
    Sketcher.Constraint("Parallel", 0, 6),
    Sketcher.Constraint("Parallel", 3, 7),
    Sketcher.Constraint("Parallel", 7, 9),
    Sketcher.Constraint("Parallel", 4, 10),
    Sketcher.Constraint("Parallel", 12, 14),
    Sketcher.Constraint("Parallel", 14, 18),
    Sketcher.Constraint("Parallel", 18, 20),
    Sketcher.Constraint("Parallel", 15, 21),
    Sketcher.Constraint("Horizontal", 8, 1, 12, 2),
    Sketcher.Constraint("Horizontal", 7, 2, 13, 1),
    Sketcher.Constraint("Horizontal", 11, 2, 15, 2),
    Sketcher.Constraint("Horizontal", 10, 2, 16, 2),
    Sketcher.Constraint("Horizontal", 4, 2, 22, 2),
    Sketcher.Constraint("Horizontal", 25, 2, 27, 2),
    Sketcher.Constraint("Vertical", 23, 2, 24, 2),
    Sketcher.Constraint("Equal", 1, 3),
    Sketcher.Constraint("Equal", 0, 4),
    Sketcher.Constraint("Radius", 24, Q("47.799999 mm")),
    Sketcher.Constraint("DistanceY", 23, 2, -1, 1, Q("1 mm")),
    Sketcher.Constraint("Angle", 1, Q("-106.1 deg")),
    Sketcher.Constraint("DistanceX", -1, 1, 26, 3, Q("0.799999 mm")),
    Sketcher.Constraint("Radius", 2, Q("44.196143 mm")),
    Sketcher.Constraint("Radius", 26, Q("44.196146 mm")),
    Sketcher.Constraint("DistanceX", 27, 2, 27, 1, Q("2.80453 mm")),
    Sketcher.Constraint("DistanceY", -1, 1, 1, 2, Q("43.497802 mm")),
    Sketcher.Constraint("DistanceY", 3, 2, 5, 2, Q("0.5548 mm")),
    Sketcher.Constraint("DistanceX", 9, 2, 12, 2, Q("27.649201 mm")),
    Sketcher.Constraint("Distance", 0, Q("0.000178 mm")),
    Sketcher.Constraint("Distance", 1, Q("2.80453 mm")),
])
pad7 = body.newObject("PartDesign::Pad", "Pad006")
pad7.Profile = sketch8
pad7.Length = 5

# Sketch on XY plane
sketch9 = body.newObject("Sketcher::SketchObject", "Sketch008")
sketch9.AttachmentSupport = (doc.getObject("XY_Plane"), [""])
sketch9.MapMode = "FlatFace"
sketch9.addGeometry([
    Part.LineSegment(V(-45, -3, 0), V(-45, 2, 0)),
    Part.ArcOfCircle(Part.Circle(V(-39.5, -4.4, 0), V(0, 0, 1), 8.4), math.radians(131), math.radians(171)),
    Part.LineSegment(V(-47.8, -3, 0), V(-45, -3, 0)),
], False)
sketch9.addConstraint([
    Sketcher.Constraint("Coincident", 0, 2, 1, 1),
    Sketcher.Constraint("Coincident", 1, 2, 2, 1),
    Sketcher.Constraint("Coincident", 2, 2, 0, 1),
    Sketcher.Constraint("Vertical", 0),
    Sketcher.Constraint("Horizontal", 2),
    Sketcher.Constraint("DistanceY", 0, 1, 0, 2, Q("5 mm")),
    Sketcher.Constraint("DistanceY", -1, 1, 0, 2, Q("2 mm")),
    Sketcher.Constraint("Radius", 1, Q("8.388544 mm")),
    Sketcher.Constraint("DistanceX", 2, 1, 2, 2, Q("2.804708 mm")),
    Sketcher.Constraint("DistanceX", 0, 2, -1, 1, Q("44.98483 mm")),
])
groove = body.newObject("PartDesign::Groove", "Groove")
groove.Profile = sketch9
groove.ReferenceAxis = (sketch9, ["V_Axis"])
groove.Angle = 360
doc.recompute()

fillet = body.newObject("PartDesign::Fillet", "Fillet")
fillet.Base = (groove, edges_at(groove, [
    (-38.2, 2, 28.733),
    (0, 2, 47.8),
    (38.2, 2, -28.733),
    (38.2, 2, 28.733),
    (-6.198, 2, -47.396),
    (-38.2, 2, -28.733),
]))
fillet.Radius = 2
body2 = doc.addObject("PartDesign::Body", "Body001")

# Sketch on XZ plane
sketch10 = body2.newObject("Sketcher::SketchObject", "Sketch009")
sketch10.AttachmentSupport = (doc.getObject("XZ_Plane001"), [""])
sketch10.MapMode = "FlatFace"
sketch10.AttachmentOffset = App.Placement(V(0, 0, 5.4), App.Rotation())
sketch10.addGeometry([
    Part.Circle(V(-21.5, 34, 0), V(0, 0, 1), 3.5),
    Part.Circle(V(-21.5, 34, 0), V(0, 0, 1), 2.5),
], False)
sketch10.addConstraint([
    Sketcher.Constraint("Coincident", 1, 3, 0, 3),
    Sketcher.Constraint("Diameter", 0, Q("7 mm")),
    Sketcher.Constraint("Diameter", 1, Q("5 mm")),
    Sketcher.Constraint("DistanceY", -1, 1, 0, 3, Q("34 mm")),
    Sketcher.Constraint("DistanceX", 0, 3, -1, 1, Q("21.5 mm")),
])
pad8 = body2.newObject("PartDesign::Pad", "Pad007")
pad8.Profile = sketch10
pad8.Length = 7.4
pad8.Reversed = True
doc.recompute()

boolean = body2.newObject("PartDesign::Boolean", "Boolean")
boolean.Type = "Fuse"
boolean.addObjects([body])
body3 = doc.addObject("PartDesign::Body", "Body002")

# Sketch on XZ plane
sketch11 = body3.newObject("Sketcher::SketchObject", "Sketch010")
sketch11.AttachmentSupport = (doc.getObject("XZ_Plane002"), [""])
sketch11.MapMode = "FlatFace"
sketch11.AttachmentOffset = App.Placement(V(0, 0, 5.4), App.Rotation())
sketch11.addGeometry([
    Part.Circle(V(21.5, 34, 0), V(0, 0, 1), 3.5),
    Part.Circle(V(21.5, 34, 0), V(0, 0, 1), 2.5),
], False)
sketch11.addConstraint([
    Sketcher.Constraint("Coincident", 1, 3, 0, 3),
    Sketcher.Constraint("Diameter", 0, Q("7 mm")),
    Sketcher.Constraint("Diameter", 1, Q("5 mm")),
    Sketcher.Constraint("DistanceY", -1, 1, 0, 3, Q("34 mm")),
    Sketcher.Constraint("DistanceX", -1, 1, 0, 3, Q("21.5 mm")),
])
pad9 = body3.newObject("PartDesign::Pad", "Pad008")
pad9.Profile = sketch11
pad9.Length = 7.4
pad9.Reversed = True
body4 = doc.addObject("PartDesign::Body", "Body003")

# Sketch on XZ plane
sketch12 = body4.newObject("Sketcher::SketchObject", "Sketch011")
sketch12.AttachmentSupport = (doc.getObject("XZ_Plane003"), [""])
sketch12.MapMode = "FlatFace"
sketch12.AttachmentOffset = App.Placement(V(0, 0, 5.4), App.Rotation())
sketch12.addGeometry([
    Part.Circle(V(21.5, -34, 0), V(0, 0, 1), 3.5),
    Part.Circle(V(21.5, -34, 0), V(0, 0, 1), 2.5),
], False)
sketch12.addConstraint([
    Sketcher.Constraint("Coincident", 1, 3, 0, 3),
    Sketcher.Constraint("Diameter", 0, Q("7 mm")),
    Sketcher.Constraint("Diameter", 1, Q("5 mm")),
    Sketcher.Constraint("DistanceY", 0, 3, -1, 1, Q("34 mm")),
    Sketcher.Constraint("DistanceX", -1, 1, 0, 3, Q("21.5 mm")),
])
pad10 = body4.newObject("PartDesign::Pad", "Pad009")
pad10.Profile = sketch12
pad10.Length = 7.4
pad10.Reversed = True
body5 = doc.addObject("PartDesign::Body", "Body004")

# Sketch on XZ plane
sketch13 = body5.newObject("Sketcher::SketchObject", "Sketch012")
sketch13.AttachmentSupport = (doc.getObject("XZ_Plane004"), [""])
sketch13.MapMode = "FlatFace"
sketch13.AttachmentOffset = App.Placement(V(0, 0, 5.4), App.Rotation())
sketch13.addGeometry([
    Part.Circle(V(-21.5, -34, 0), V(0, 0, 1), 3.5),
    Part.Circle(V(-21.5, -34, 0), V(0, 0, 1), 2.5),
], False)
sketch13.addConstraint([
    Sketcher.Constraint("Coincident", 1, 3, 0, 3),
    Sketcher.Constraint("Diameter", 0, Q("7 mm")),
    Sketcher.Constraint("Diameter", 1, Q("5 mm")),
    Sketcher.Constraint("DistanceY", 0, 3, -1, 1, Q("34 mm")),
    Sketcher.Constraint("DistanceX", 0, 3, -1, 1, Q("21.5 mm")),
])
pad11 = body5.newObject("PartDesign::Pad", "Pad010")
pad11.Profile = sketch13
pad11.Length = 7.4
pad11.Reversed = True
doc.recompute()

boolean2 = body2.newObject("PartDesign::Boolean", "Boolean001")
boolean2.Type = "Fuse"
boolean2.addObjects([body3])

# Sketch on XZ plane
sketch14 = body2.newObject("Sketcher::SketchObject", "Sketch013")
sketch14.AttachmentSupport = (doc.getObject("XZ_Plane001"), [""])
sketch14.MapMode = "FlatFace"
sketch14.addGeometry([
    Part.Circle(V(0, 0, 0), V(0, 0, 1), 50),
    Part.Circle(V(0, 0, 0), V(0, 0, 1), 50),
], False)
sketch14.addConstraint([
    Sketcher.Constraint("Coincident", 0, 3, -1, 1),
    Sketcher.Constraint("Coincident", 1, 3, -1, 1),
    Sketcher.Constraint("Diameter", 1, Q("100 mm")),
    Sketcher.Constraint("Diameter", 0, Q("100.6 mm")),
])
pad12 = body2.newObject("PartDesign::Pad", "Pad011")
pad12.Profile = sketch14
pad12.Length = 4
pad12.Reversed = True
doc.recompute()

fillet2 = body2.newObject("PartDesign::Fillet", "Fillet001")
fillet2.Base = (pad12, edges_at(pad12, [(0, 4, -50.3)]))
fillet2.Radius = 2

# Sketch on XZ plane
sketch15 = body2.newObject("Sketcher::SketchObject", "Sketch014")
sketch15.AttachmentSupport = (doc.getObject("XZ_Plane001"), [""])
sketch15.MapMode = "FlatFace"
sketch15.AttachmentOffset = App.Placement(V(0, 0, 6), App.Rotation())
sketch15.addGeometry([
    Part.LineSegment(V(-6.8, -47.3, 0), V(-7.1, -49.3, 0)),  # 0
    Part.ArcOfCircle(Part.Circle(V(0, 0, 0), V(0, 0, 1), 49.8), math.radians(-98.23), math.radians(-81.77)),  # 1
    Part.LineSegment(V(7.1, -49.3, 0), V(6.8, -47.3, 0)),  # 2
    Part.ArcOfCircle(Part.Circle(V(0, 0, 0), V(0, 0, 1), 47.8), math.radians(-86.8), math.radians(-81.77)),  # 3
    Part.ArcOfCircle(Part.Circle(V(0, 0, 0), V(0, 0, 1), 47.8), math.radians(-93.1), math.radians(-86.8)),  # 4
    Part.ArcOfCircle(Part.Circle(V(0, 0, 0), V(0, 0, 1), 47.8), math.radians(-98.23), math.radians(-93.1)),  # 5
], False)
sketch15.addConstraint([
    Sketcher.Constraint("Coincident", 0, 2, 1, 1),
    Sketcher.Constraint("Coincident", 1, 2, 2, 1),
    Sketcher.Constraint("Coincident", 2, 2, 3, 2),
    Sketcher.Constraint("Tangent", 3, 1, 4, 2),
    Sketcher.Constraint("Tangent", 4, 1, 5, 2),
    Sketcher.Constraint("Coincident", 5, 1, 0, 1),
    Sketcher.Constraint("Coincident", 1, 3, -1, 1),
    Sketcher.Constraint("Coincident", 3, 3, -1, 1),
    Sketcher.Constraint("Coincident", 5, 3, -1, 1),
    Sketcher.Constraint("Horizontal", 0, 2, 1, 2),
    Sketcher.Constraint("Horizontal", 2, 2, 5, 1),
    Sketcher.Constraint("Radius", 1, Q("49.8 mm")),
    Sketcher.Constraint("Radius", 3, Q("47.8 mm")),
    Sketcher.Constraint("DistanceX", 0, 2, -1, 1, Q("7.1302 mm")),
    Sketcher.Constraint("DistanceY", 4, 1, 2, 2, Q("0.4225 mm")),
    Sketcher.Constraint("DistanceX", 5, 1, 3, 1, Q("9.514302 mm")),
    Sketcher.Constraint("DistanceX", 4, 1, -1, 1, Q("2.585522 mm")),
])
pad13 = body2.newObject("PartDesign::Pad", "Pad012")
pad13.Profile = sketch15
pad13.Length = 6.35

# Sketch on XZ plane
sketch16 = body2.newObject("Sketcher::SketchObject", "Sketch015")
sketch16.AttachmentSupport = (doc.getObject("XZ_Plane001"), [""])
sketch16.MapMode = "FlatFace"
sketch16.addGeometry([
    Part.LineSegment(V(-7.1, -49.3, 0), V(-7.2, -49.8, 0)),
    Part.ArcOfCircle(Part.Circle(V(0, 0, 0), V(0, 0, 1), 50.3), math.radians(-98.23), math.radians(-81.77)),
    Part.LineSegment(V(7.2, -49.8, 0), V(7.1, -49.3, 0)),
    Part.ArcOfCircle(Part.Circle(V(0, 0, 0), V(0, 0, 1), 49.8), math.radians(-98.23), math.radians(-81.77)),
], False)
sketch16.addConstraint([
    Sketcher.Constraint("Coincident", 0, 2, 1, 1),
    Sketcher.Constraint("Coincident", 1, 2, 2, 1),
    Sketcher.Constraint("Coincident", 2, 2, 3, 2),
    Sketcher.Constraint("Coincident", 3, 1, 0, 1),
    Sketcher.Constraint("Coincident", 1, 3, -1, 1),
    Sketcher.Constraint("Coincident", 3, 3, -1, 1),
    Sketcher.Constraint("Horizontal", 0, 2, 1, 2),
    Sketcher.Constraint("Horizontal", 2, 2, 3, 1),
    Sketcher.Constraint("Radius", 1, Q("50.3 mm")),
    Sketcher.Constraint("Radius", 3, Q("49.8 mm")),
    Sketcher.Constraint("DistanceX", -1, 1, 2, 2, Q("7.1302 mm")),
    Sketcher.Constraint("DistanceX", 0, 2, -1, 1, Q("7.201789 mm")),
])
pad14 = body2.newObject("PartDesign::Pad", "Pad013")
pad14.Profile = sketch16
pad14.Length = 12.35
doc.recompute()

fillet3 = body2.newObject("PartDesign::Fillet", "Fillet002")
fillet3.Base = (pad14, edges_at(pad14, [(-6.987, -12.35, -48.297)]))
fillet3.Radius = 1
doc.recompute()

fillet4 = body2.newObject("PartDesign::Fillet", "Fillet003")
fillet4.Base = (fillet3, edges_at(fillet3, [(6.987, -12.35, -48.297)]))
fillet4.Radius = 1

# Sketch on XY plane
sketch17 = body2.newObject("Sketcher::SketchObject", "Sketch016")
sketch17.AttachmentSupport = (doc.getObject("XY_Plane001"), [""])
sketch17.MapMode = "FlatFace"
sketch17.AttachmentOffset = App.Placement(V(0, 0, -45), App.Rotation())
sketch17.addGeometry([
    Part.ArcOfCircle(Part.Circle(V(3, -8.5, 0), V(0, 0, 1), 1.5), math.radians(-90), math.radians(90)),
    Part.LineSegment(V(3, -7, 0), V(-3, -7, 0)),
    Part.ArcOfCircle(Part.Circle(V(-3, -8.5, 0), V(0, 0, 1), 1.5), math.radians(90), math.radians(270)),
    Part.LineSegment(V(-3, -10, 0), V(3, -10, 0)),
], False)
sketch17.addConstraint([
    Sketcher.Constraint("Tangent", 0, 2, 1, 1),
    Sketcher.Constraint("Tangent", 1, 2, 2, 1),
    Sketcher.Constraint("Tangent", 2, 2, 3, 1),
    Sketcher.Constraint("Tangent", 3, 2, 0, 1),
    Sketcher.Constraint("Horizontal", 1),
    Sketcher.Constraint("Horizontal", 3),
    Sketcher.Constraint("Radius", 0, Q("1.5 mm")),
    Sketcher.Constraint("DistanceX", 1, 2, 1, 1, Q("6 mm")),
    Sketcher.Constraint("DistanceX", -1, 1, 0, 3, Q("3 mm")),
    Sketcher.Constraint("DistanceY", 0, 2, -1, 1, Q("7 mm")),
])
pocket2 = body2.newObject("PartDesign::Pocket", "Pocket001")
pocket2.Profile = sketch17
pocket2.Length = 10
doc.recompute()

chamfer = body2.newObject("PartDesign::Chamfer", "Chamfer")
chamfer.Base = (pocket2, edges_at(pocket2, [
    (21.5, -7, 35.25),
    (21.5, 2, 35.25),
    (-21.5, -7, 35.25),
    (21.5, -7, -35.25),
    (-21.5, -7, -35.25),
]))
chamfer.Size = 0.3

doc.recompute()
